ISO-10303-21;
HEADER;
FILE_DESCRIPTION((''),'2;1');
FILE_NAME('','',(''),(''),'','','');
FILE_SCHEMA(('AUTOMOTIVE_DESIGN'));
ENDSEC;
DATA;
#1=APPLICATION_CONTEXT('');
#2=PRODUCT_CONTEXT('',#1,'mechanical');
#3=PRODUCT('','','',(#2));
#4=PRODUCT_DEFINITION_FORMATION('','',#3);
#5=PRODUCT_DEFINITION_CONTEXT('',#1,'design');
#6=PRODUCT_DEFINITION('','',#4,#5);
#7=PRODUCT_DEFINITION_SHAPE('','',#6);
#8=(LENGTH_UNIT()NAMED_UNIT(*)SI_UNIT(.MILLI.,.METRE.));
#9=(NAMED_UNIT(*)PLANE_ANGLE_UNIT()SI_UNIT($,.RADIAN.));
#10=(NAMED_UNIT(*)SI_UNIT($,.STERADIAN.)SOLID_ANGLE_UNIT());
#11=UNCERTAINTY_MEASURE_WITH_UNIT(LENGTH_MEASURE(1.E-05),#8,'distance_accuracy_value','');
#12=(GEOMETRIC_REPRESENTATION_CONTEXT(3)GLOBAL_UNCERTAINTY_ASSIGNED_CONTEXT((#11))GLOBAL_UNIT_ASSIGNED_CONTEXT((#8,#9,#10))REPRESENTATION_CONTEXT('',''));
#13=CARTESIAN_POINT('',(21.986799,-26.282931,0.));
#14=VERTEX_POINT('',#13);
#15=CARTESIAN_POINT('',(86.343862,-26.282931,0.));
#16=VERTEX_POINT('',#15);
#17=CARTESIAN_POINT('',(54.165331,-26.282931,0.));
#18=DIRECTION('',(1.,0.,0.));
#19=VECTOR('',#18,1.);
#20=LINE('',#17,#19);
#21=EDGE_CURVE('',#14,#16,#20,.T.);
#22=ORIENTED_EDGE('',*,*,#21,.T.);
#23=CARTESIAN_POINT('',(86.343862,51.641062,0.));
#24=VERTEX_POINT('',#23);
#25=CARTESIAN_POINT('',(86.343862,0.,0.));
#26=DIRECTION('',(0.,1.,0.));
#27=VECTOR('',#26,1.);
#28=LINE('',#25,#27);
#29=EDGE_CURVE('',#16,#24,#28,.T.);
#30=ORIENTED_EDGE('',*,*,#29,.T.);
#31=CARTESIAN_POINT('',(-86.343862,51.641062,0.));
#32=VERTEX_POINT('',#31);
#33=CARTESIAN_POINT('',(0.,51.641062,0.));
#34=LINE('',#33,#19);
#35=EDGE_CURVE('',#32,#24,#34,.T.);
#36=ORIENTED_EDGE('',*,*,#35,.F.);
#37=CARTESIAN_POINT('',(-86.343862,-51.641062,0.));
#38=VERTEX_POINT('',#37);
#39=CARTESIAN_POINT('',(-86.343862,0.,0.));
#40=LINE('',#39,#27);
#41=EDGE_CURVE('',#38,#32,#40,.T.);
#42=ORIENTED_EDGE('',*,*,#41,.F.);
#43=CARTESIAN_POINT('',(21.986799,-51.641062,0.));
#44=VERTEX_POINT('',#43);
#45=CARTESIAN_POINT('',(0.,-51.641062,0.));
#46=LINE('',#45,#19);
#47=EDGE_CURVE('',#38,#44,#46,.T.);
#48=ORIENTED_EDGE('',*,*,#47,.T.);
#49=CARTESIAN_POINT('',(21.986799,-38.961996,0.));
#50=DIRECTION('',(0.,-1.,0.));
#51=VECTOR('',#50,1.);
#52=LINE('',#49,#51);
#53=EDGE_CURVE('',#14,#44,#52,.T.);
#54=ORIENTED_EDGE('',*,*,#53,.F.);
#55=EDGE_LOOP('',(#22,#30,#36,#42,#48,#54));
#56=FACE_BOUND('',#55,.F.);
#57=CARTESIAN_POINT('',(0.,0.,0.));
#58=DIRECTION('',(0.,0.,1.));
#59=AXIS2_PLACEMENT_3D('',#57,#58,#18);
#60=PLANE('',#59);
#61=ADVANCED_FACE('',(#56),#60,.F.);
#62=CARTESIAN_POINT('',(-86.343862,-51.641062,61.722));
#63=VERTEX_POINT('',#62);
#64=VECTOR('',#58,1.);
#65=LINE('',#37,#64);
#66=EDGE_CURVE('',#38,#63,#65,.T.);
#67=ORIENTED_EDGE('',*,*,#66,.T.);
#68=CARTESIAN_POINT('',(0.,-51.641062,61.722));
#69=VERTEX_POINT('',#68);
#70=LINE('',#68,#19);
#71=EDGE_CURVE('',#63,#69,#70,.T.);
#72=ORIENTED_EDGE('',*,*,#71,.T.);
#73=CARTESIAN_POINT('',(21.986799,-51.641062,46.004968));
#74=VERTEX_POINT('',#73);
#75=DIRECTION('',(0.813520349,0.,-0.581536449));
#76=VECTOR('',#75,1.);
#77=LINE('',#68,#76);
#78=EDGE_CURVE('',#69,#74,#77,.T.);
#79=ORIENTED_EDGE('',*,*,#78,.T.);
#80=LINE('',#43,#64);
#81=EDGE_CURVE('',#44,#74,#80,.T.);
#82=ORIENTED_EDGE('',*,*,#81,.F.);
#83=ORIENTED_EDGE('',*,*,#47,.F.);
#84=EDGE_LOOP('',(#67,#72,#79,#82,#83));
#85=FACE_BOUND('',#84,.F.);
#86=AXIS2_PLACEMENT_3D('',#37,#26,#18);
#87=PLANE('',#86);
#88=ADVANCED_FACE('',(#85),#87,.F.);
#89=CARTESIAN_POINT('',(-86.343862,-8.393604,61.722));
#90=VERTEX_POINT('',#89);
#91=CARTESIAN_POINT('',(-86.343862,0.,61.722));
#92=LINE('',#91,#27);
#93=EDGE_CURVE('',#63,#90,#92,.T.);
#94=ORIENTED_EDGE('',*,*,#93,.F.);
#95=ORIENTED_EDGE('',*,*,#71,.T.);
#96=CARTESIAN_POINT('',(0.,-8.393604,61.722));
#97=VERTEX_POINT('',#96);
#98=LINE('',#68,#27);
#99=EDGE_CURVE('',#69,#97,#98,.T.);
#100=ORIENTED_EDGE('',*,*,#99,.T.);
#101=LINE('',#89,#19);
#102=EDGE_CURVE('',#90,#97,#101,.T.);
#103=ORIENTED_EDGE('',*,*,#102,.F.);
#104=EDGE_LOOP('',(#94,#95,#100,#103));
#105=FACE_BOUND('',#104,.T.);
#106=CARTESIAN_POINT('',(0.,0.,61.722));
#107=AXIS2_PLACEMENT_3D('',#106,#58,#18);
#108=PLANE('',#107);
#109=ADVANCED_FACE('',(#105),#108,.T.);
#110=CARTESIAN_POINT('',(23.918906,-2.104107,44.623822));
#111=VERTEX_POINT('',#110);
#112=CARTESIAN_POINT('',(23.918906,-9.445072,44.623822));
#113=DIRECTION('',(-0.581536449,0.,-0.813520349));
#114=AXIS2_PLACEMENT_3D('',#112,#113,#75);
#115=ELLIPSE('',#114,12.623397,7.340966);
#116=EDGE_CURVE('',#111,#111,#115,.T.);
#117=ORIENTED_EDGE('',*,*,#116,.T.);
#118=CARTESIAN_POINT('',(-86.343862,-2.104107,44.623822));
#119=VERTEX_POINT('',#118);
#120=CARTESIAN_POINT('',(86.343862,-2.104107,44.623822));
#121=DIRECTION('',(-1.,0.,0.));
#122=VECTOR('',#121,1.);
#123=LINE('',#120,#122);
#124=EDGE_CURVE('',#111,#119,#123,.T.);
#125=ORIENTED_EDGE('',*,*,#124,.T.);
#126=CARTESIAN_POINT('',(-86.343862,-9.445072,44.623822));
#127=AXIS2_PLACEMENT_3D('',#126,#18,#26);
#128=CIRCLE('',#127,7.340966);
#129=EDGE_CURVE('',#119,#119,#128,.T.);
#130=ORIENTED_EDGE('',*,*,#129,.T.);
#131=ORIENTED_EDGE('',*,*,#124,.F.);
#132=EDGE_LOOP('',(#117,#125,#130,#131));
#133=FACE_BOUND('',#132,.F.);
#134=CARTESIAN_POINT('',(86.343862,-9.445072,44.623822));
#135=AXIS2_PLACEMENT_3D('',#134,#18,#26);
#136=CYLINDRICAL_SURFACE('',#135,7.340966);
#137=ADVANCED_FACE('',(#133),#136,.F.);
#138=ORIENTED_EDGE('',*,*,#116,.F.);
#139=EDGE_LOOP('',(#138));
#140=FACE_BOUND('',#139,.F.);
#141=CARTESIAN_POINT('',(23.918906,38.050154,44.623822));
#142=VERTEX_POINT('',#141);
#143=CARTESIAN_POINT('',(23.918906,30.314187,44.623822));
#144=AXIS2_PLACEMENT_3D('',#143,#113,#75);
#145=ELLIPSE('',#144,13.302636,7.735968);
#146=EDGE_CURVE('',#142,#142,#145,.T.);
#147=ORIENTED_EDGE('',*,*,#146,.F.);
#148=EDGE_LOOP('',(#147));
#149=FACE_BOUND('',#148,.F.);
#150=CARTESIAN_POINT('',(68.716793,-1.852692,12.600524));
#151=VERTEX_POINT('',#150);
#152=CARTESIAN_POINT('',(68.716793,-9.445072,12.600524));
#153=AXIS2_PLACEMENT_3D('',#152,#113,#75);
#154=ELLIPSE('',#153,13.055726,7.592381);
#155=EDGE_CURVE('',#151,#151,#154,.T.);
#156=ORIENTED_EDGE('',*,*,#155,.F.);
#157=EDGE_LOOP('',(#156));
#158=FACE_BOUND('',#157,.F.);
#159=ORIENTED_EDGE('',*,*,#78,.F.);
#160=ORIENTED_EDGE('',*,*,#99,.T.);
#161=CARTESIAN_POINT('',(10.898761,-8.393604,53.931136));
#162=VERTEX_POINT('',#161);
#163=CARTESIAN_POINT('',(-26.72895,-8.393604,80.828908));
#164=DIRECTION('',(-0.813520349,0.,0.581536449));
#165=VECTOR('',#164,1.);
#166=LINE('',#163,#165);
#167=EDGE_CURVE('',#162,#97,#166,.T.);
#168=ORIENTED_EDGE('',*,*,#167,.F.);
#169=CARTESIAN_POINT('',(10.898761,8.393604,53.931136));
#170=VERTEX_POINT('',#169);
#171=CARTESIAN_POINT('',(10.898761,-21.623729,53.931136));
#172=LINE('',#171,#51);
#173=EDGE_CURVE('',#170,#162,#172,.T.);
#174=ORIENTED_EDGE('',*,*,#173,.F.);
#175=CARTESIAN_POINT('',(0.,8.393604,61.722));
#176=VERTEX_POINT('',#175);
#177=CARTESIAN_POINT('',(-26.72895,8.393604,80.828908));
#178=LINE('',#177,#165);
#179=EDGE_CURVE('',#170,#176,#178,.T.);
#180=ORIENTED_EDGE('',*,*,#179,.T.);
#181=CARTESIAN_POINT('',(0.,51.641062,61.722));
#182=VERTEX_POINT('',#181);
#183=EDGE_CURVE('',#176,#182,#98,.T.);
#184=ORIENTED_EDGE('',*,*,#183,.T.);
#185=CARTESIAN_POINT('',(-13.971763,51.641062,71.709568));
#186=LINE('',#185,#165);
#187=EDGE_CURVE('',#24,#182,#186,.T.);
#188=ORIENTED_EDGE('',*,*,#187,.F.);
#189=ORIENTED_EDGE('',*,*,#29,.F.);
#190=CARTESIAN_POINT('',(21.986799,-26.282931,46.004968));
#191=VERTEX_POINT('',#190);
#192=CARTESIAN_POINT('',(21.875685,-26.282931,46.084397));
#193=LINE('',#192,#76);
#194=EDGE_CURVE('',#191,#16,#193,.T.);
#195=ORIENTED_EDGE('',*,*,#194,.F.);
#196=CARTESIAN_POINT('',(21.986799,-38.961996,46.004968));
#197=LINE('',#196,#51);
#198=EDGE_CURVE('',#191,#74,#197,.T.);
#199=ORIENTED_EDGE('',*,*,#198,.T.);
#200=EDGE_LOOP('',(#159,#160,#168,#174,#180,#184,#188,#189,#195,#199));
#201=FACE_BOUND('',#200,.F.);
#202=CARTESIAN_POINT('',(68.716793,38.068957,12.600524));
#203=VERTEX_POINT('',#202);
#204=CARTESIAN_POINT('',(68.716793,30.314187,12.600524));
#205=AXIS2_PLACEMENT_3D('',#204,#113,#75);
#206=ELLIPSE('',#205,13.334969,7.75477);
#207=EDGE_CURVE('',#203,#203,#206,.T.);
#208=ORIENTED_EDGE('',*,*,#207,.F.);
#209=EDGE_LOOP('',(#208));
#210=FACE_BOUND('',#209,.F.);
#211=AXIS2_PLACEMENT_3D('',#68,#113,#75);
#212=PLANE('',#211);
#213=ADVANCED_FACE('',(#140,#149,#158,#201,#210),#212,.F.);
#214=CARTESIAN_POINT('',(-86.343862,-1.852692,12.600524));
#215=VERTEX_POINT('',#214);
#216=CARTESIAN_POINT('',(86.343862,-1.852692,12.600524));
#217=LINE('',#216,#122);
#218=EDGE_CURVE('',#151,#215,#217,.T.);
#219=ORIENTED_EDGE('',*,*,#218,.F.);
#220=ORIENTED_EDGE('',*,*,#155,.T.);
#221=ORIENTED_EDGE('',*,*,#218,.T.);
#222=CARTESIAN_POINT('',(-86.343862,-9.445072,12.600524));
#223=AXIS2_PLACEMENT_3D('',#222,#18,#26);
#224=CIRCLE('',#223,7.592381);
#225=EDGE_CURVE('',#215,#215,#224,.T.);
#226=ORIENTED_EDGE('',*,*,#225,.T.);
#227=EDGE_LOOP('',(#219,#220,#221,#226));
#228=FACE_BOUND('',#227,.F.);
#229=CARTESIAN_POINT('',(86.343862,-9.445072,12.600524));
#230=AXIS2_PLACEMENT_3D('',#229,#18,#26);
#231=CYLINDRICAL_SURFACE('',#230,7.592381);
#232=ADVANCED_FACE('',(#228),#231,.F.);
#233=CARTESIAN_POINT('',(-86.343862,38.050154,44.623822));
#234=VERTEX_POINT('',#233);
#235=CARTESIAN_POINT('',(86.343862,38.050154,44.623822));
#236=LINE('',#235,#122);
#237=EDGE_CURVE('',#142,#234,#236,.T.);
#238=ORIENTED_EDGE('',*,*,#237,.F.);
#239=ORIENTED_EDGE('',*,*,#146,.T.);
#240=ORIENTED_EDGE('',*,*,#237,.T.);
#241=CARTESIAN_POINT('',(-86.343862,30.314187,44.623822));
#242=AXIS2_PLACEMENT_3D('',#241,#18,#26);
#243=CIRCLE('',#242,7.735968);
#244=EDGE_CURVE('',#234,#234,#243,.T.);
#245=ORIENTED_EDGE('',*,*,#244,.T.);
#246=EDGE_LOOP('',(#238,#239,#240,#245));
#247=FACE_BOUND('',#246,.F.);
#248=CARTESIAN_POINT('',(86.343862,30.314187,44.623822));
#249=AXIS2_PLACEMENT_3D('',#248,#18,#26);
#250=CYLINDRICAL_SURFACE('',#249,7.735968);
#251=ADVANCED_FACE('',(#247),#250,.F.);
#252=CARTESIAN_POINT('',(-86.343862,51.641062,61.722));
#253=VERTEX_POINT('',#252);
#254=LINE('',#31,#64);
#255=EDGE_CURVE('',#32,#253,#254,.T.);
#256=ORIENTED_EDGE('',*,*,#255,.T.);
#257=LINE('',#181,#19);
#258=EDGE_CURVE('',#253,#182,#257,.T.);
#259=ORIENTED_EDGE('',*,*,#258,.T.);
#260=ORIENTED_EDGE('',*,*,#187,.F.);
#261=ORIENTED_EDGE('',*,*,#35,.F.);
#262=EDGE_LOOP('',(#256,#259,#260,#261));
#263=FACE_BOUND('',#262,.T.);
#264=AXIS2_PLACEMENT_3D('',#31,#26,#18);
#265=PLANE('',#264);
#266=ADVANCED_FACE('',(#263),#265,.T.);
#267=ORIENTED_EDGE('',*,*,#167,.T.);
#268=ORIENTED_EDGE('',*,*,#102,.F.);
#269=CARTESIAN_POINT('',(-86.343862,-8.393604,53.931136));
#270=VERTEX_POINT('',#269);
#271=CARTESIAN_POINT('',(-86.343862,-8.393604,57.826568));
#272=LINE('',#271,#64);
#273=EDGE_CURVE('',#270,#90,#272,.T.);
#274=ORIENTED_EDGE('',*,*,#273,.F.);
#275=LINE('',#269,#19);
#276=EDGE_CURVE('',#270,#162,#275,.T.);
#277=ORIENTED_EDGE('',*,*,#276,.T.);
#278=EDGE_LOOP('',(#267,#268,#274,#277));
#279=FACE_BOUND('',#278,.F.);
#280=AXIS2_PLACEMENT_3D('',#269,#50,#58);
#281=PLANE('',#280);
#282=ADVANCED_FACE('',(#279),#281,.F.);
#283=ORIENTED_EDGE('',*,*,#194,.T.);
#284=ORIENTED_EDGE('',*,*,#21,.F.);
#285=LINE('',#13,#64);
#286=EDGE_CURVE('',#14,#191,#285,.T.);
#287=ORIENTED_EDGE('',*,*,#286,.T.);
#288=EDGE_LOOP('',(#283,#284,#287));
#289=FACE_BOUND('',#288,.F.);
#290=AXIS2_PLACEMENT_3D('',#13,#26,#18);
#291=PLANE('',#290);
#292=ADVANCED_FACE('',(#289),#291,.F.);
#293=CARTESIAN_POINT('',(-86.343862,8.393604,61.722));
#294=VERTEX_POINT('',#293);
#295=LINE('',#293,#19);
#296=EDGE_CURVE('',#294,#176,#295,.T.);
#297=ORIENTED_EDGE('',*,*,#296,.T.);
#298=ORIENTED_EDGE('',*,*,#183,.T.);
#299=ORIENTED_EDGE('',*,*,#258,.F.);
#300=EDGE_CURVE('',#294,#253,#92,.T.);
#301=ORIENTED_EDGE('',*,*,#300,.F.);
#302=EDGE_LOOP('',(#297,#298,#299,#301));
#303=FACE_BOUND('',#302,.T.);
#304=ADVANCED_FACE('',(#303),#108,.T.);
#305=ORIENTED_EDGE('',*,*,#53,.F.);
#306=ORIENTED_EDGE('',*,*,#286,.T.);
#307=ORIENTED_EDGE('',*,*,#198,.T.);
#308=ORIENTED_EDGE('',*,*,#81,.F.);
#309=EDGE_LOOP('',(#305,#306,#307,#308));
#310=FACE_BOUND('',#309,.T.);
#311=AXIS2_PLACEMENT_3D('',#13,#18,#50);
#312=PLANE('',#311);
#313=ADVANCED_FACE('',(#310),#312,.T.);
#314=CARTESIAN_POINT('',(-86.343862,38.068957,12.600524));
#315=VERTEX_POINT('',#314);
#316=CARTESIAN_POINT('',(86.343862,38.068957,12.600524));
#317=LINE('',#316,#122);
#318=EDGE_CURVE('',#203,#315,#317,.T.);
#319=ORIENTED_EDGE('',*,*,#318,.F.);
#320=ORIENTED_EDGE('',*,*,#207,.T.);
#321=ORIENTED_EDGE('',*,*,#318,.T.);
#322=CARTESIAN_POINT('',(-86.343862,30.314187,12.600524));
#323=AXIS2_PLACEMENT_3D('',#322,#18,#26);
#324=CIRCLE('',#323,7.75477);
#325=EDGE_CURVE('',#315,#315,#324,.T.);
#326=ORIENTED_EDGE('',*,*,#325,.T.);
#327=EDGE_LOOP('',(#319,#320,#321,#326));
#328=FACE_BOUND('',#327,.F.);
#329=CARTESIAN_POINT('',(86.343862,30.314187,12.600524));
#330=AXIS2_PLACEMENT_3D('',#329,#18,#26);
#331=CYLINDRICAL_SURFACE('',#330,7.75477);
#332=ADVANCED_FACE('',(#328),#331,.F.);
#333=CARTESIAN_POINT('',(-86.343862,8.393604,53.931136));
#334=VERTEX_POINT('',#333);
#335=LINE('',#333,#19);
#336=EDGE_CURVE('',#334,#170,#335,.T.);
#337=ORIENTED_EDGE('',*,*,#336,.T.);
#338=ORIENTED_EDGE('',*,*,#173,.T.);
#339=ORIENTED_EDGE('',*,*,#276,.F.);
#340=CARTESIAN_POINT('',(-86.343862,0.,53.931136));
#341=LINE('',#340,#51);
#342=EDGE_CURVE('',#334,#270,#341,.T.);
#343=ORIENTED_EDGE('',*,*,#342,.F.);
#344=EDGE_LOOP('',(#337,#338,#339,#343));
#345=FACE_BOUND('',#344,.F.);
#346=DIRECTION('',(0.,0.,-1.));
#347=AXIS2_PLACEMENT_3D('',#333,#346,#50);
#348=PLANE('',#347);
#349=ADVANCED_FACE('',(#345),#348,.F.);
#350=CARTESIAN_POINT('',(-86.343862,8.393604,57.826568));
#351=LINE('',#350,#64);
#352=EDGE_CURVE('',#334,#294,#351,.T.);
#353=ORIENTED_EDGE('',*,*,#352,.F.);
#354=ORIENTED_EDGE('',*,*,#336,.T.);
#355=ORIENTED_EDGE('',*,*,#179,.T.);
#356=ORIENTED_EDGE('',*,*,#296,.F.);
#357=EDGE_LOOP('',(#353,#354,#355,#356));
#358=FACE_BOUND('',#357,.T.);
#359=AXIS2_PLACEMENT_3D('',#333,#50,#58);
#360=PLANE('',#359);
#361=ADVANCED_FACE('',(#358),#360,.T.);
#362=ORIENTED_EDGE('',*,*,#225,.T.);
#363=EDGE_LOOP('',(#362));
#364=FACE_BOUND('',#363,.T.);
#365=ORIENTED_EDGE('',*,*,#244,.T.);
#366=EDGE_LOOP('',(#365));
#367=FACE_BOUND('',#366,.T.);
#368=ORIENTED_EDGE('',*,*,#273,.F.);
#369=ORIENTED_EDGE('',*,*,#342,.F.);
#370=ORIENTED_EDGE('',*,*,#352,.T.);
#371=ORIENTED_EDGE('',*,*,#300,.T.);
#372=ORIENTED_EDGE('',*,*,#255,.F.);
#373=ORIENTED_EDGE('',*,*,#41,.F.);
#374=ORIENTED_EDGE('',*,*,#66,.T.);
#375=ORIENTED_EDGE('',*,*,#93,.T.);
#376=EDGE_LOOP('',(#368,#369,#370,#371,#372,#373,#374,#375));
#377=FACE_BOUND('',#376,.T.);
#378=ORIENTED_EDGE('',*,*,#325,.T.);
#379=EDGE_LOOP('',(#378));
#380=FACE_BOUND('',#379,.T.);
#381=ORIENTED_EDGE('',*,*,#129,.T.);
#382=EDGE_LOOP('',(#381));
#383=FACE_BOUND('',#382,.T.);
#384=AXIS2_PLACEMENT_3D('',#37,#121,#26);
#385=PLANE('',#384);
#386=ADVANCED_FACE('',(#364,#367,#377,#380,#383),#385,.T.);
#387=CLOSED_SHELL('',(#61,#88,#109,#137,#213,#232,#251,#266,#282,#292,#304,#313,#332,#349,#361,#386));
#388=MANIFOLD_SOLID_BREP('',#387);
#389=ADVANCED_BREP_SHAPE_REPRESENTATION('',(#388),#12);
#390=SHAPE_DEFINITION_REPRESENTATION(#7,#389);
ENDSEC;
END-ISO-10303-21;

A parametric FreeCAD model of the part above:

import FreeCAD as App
import Part
import Sketcher

V = App.Vector
Q = App.Units.Quantity

doc = App.newDocument("Part")
body = doc.addObject("PartDesign::Body", "Body")

sketch1 = body.newObject("Sketcher::SketchObject", "Sketch")
sketch1.AttachmentSupport = (doc.getObject("XY_Plane"), [""])
sketch1.MapMode = "FlatFace"
sketch1.addGeometry([
    Part.LineSegment(V(-86.343862, 51.641062, 0), V(-86.343862, -51.641062, 0)),
    Part.LineSegment(V(-86.343862, -51.641062, 0), V(86.343862, -51.641062, 0)),
    Part.LineSegment(V(86.343862, -51.641062, 0), V(86.343862, 51.641062, 0)),
    Part.LineSegment(V(86.343862, 51.641062, 0), V(-86.343862, 51.641062, 0)),
], False)
sketch1.addConstraint([
    Sketcher.Constraint("Coincident", 0, 2, 1, 1),
    Sketcher.Constraint("Coincident", 1, 2, 2, 1),
    Sketcher.Constraint("Coincident", 2, 2, 3, 1),
    Sketcher.Constraint("Coincident", 3, 2, 0, 1),
    Sketcher.Constraint("Vertical", 0),
    Sketcher.Constraint("Horizontal", 1),
    Sketcher.Constraint("Vertical", 2),
    Sketcher.Constraint("Horizontal", 3),
    Sketcher.Constraint("Symmetric", 0, 2, 2, 2, -1, 1),
    Sketcher.Constraint("DistanceX", 1, 1, 1, 2, Q("172.687724 mm")),
    Sketcher.Constraint("DistanceY", 0, 2, 0, 1, Q("103.282124 mm")),
])
pad1 = body.newObject("PartDesign::Pad", "Pad")
pad1.Profile = sketch1
pad1.Length = Q("2.43 in")

sketch2 = body.newObject("Sketcher::SketchObject", "Sketch001")
sketch2.AttachmentSupport = (doc.getObject("YZ_Plane"), [""])
sketch2.MapMode = "FlatFace"
sketch2.AttachmentOffset = App.Placement(V(0, 0, 86.343862), App.Rotation())
sketch2.addGeometry([
    Part.Circle(V(30.314187, 44.623822, 0), V(0, 0, 1), 7.735968),
    Part.Circle(V(-9.445072, 44.623822, 0), V(0, 0, 1), 7.340966),
    Part.Circle(V(-9.445072, 12.600524, 0), V(0, 0, 1), 7.592381),
    Part.Circle(V(30.314187, 12.600524, 0), V(0, 0, 1), 7.75477),
], False)
sketch2.addConstraint([
    Sketcher.Constraint("Horizontal", 0, 3, 1, 3),
    Sketcher.Constraint("Horizontal", 2, 3, 3, 3),
    Sketcher.Constraint("Vertical", 1, 3, 2, 3),
    Sketcher.Constraint("Vertical", 0, 3, 3, 3),
    Sketcher.Constraint("Diameter", 1, Q("14.681931 mm")),
    Sketcher.Constraint("Diameter", 2, Q("15.184761 mm")),
    Sketcher.Constraint("Diameter", 3, Q("15.509541 mm")),
    Sketcher.Constraint("Diameter", 0, Q("15.471935 mm")),
    Sketcher.Constraint("DistanceY", -1, 1, 0, 3, Q("44.623822 mm")),
    Sketcher.Constraint("DistanceX", 1, 3, 0, 3, Q("39.759259 mm")),
    Sketcher.Constraint("DistanceX", -1, 1, 0, 3, Q("30.314187 mm")),
    Sketcher.Constraint("DistanceY", -1, 1, 2, 3, Q("12.600524 mm")),
])
pocket1 = body.newObject("PartDesign::Pocket", "Pocket")
pocket1.Profile = sketch2
pocket1.Length = Q("12.76 in")

sketch3 = body.newObject("Sketcher::SketchObject", "Sketch002")
sketch3.AttachmentSupport = (doc.getObject("XZ_Plane"), [""])
sketch3.MapMode = "FlatFace"
sketch3.AttachmentOffset = App.Placement(V(0, 0, 51.641062), App.Rotation())
sketch3.addGeometry([
    Part.LineSegment(V(86.343862, 61.722, 0), V(0, 61.722, 0)),
    Part.LineSegment(V(0, 61.722, 0), V(86.343862, 0, 0)),
    Part.LineSegment(V(86.343862, 0, 0), V(86.343862, 61.722, 0)),
], False)
sketch3.addConstraint([
    Sketcher.Constraint("Coincident", 0, 2, 1, 1),
    Sketcher.Constraint("Coincident", 1, 2, 2, 1),
    Sketcher.Constraint("Coincident", 2, 2, 0, 1),
    Sketcher.Constraint("Horizontal", 0),
    Sketcher.Constraint("Vertical", 2),
    Sketcher.Constraint("PointOnObject", 0, 2, -2),
    Sketcher.Constraint("PointOnObject", 1, 2, -1),
    Sketcher.Constraint("DistanceY", 2, 1, 2, 2, Q("2.43 in")),
    Sketcher.Constraint("Distance", 1, Q("106.136082 mm")),
])
pocket2 = body.newObject("PartDesign::Pocket", "Pocket001")
pocket2.Profile = sketch3
pocket2.Length = Q("6 in")

sketch4 = body.newObject("Sketcher::SketchObject", "Sketch003")
sketch4.AttachmentSupport = (doc.getObject("XY_Plane"), [""])
sketch4.MapMode = "FlatFace"
sketch4.addGeometry([
    Part.LineSegment(V(21.986799, -51.641062, 0), V(21.986799, -26.282931, 0)),
    Part.LineSegment(V(21.986799, -26.282931, 0), V(86.343862, -26.282931, 0)),
    Part.LineSegment(V(86.343862, -26.282931, 0), V(86.343862, -51.641062, 0)),
    Part.LineSegment(V(86.343862, -51.641062, 0), V(21.986799, -51.641062, 0)),
], False)
sketch4.addConstraint([
    Sketcher.Constraint("Coincident", 0, 2, 1, 1),
    Sketcher.Constraint("Coincident", 1, 2, 2, 1),
    Sketcher.Constraint("Coincident", 2, 2, 3, 1),
    Sketcher.Constraint("Coincident", 3, 2, 0, 1),
    Sketcher.Constraint("Vertical", 0),
    Sketcher.Constraint("Horizontal", 1),
    Sketcher.Constraint("Vertical", 2),
    Sketcher.Constraint("Horizontal", 3),
    Sketcher.Constraint("DistanceY", 0, 1, 0, 2, Q("25.358131 mm")),
    Sketcher.Constraint("DistanceX", -1, 1, 0, 2, Q("21.986799 mm")),
    Sketcher.Constraint("DistanceX", 1, 1, 1, 2, Q("64.357063 mm")),
    Sketcher.Constraint("DistanceY", 0, 2, -1, 1, Q("26.282931 mm")),
])
pocket3 = body.newObject("PartDesign::Pocket", "Pocket002")
pocket3.Profile = sketch4
pocket3.Length = Q("2.97 in")
pocket3.Reversed = True

sketch5 = body.newObject("Sketcher::SketchObject", "Sketch004")
sketch5.AttachmentSupport = (doc.getObject("YZ_Plane"), [""])
sketch5.MapMode = "FlatFace"
sketch5.AttachmentOffset = App.Placement(V(0, 0, -86.343862), App.Rotation())
sketch5.addGeometry([
    Part.LineSegment(V(8.393604, 61.722, 0), V(8.393604, 53.931136, 0)),
    Part.LineSegment(V(8.393604, 53.931136, 0), V(-8.393604, 53.931136, 0)),
    Part.LineSegment(V(-8.393604, 53.931136, 0), V(-8.393604, 61.722, 0)),
    Part.LineSegment(V(-8.393604, 61.722, 0), V(8.393604, 61.722, 0)),
], False)
sketch5.addConstraint([
    Sketcher.Constraint("Coincident", 0, 2, 1, 1),
    Sketcher.Constraint("Coincident", 1, 2, 2, 1),
    Sketcher.Constraint("Coincident", 2, 2, 3, 1),
    Sketcher.Constraint("Coincident", 3, 2, 0, 1),
    Sketcher.Constraint("Vertical", 0),
    Sketcher.Constraint("Horizontal", 1),
    Sketcher.Constraint("Vertical", 2),
    Sketcher.Constraint("Horizontal", 3),
    Sketcher.Constraint("DistanceY", -1, 1, 2, 2, Q("2.43 in")),
    Sketcher.Constraint("DistanceX", 1, 2, 1, 1, Q("16.787209 mm")),
    Sketcher.Constraint("DistanceY", 0, 2, 0, 1, Q("7.790864 mm")),
    Sketcher.Constraint("DistanceX", -1, 1, 0, 2, Q("8.393604 mm")),
])
pocket4 = body.newObject("PartDesign::Pocket", "Pocket003")
pocket4.Profile = sketch5
pocket4.Length = Q("4.32 in")
pocket4.Reversed = True

doc.recompute()
